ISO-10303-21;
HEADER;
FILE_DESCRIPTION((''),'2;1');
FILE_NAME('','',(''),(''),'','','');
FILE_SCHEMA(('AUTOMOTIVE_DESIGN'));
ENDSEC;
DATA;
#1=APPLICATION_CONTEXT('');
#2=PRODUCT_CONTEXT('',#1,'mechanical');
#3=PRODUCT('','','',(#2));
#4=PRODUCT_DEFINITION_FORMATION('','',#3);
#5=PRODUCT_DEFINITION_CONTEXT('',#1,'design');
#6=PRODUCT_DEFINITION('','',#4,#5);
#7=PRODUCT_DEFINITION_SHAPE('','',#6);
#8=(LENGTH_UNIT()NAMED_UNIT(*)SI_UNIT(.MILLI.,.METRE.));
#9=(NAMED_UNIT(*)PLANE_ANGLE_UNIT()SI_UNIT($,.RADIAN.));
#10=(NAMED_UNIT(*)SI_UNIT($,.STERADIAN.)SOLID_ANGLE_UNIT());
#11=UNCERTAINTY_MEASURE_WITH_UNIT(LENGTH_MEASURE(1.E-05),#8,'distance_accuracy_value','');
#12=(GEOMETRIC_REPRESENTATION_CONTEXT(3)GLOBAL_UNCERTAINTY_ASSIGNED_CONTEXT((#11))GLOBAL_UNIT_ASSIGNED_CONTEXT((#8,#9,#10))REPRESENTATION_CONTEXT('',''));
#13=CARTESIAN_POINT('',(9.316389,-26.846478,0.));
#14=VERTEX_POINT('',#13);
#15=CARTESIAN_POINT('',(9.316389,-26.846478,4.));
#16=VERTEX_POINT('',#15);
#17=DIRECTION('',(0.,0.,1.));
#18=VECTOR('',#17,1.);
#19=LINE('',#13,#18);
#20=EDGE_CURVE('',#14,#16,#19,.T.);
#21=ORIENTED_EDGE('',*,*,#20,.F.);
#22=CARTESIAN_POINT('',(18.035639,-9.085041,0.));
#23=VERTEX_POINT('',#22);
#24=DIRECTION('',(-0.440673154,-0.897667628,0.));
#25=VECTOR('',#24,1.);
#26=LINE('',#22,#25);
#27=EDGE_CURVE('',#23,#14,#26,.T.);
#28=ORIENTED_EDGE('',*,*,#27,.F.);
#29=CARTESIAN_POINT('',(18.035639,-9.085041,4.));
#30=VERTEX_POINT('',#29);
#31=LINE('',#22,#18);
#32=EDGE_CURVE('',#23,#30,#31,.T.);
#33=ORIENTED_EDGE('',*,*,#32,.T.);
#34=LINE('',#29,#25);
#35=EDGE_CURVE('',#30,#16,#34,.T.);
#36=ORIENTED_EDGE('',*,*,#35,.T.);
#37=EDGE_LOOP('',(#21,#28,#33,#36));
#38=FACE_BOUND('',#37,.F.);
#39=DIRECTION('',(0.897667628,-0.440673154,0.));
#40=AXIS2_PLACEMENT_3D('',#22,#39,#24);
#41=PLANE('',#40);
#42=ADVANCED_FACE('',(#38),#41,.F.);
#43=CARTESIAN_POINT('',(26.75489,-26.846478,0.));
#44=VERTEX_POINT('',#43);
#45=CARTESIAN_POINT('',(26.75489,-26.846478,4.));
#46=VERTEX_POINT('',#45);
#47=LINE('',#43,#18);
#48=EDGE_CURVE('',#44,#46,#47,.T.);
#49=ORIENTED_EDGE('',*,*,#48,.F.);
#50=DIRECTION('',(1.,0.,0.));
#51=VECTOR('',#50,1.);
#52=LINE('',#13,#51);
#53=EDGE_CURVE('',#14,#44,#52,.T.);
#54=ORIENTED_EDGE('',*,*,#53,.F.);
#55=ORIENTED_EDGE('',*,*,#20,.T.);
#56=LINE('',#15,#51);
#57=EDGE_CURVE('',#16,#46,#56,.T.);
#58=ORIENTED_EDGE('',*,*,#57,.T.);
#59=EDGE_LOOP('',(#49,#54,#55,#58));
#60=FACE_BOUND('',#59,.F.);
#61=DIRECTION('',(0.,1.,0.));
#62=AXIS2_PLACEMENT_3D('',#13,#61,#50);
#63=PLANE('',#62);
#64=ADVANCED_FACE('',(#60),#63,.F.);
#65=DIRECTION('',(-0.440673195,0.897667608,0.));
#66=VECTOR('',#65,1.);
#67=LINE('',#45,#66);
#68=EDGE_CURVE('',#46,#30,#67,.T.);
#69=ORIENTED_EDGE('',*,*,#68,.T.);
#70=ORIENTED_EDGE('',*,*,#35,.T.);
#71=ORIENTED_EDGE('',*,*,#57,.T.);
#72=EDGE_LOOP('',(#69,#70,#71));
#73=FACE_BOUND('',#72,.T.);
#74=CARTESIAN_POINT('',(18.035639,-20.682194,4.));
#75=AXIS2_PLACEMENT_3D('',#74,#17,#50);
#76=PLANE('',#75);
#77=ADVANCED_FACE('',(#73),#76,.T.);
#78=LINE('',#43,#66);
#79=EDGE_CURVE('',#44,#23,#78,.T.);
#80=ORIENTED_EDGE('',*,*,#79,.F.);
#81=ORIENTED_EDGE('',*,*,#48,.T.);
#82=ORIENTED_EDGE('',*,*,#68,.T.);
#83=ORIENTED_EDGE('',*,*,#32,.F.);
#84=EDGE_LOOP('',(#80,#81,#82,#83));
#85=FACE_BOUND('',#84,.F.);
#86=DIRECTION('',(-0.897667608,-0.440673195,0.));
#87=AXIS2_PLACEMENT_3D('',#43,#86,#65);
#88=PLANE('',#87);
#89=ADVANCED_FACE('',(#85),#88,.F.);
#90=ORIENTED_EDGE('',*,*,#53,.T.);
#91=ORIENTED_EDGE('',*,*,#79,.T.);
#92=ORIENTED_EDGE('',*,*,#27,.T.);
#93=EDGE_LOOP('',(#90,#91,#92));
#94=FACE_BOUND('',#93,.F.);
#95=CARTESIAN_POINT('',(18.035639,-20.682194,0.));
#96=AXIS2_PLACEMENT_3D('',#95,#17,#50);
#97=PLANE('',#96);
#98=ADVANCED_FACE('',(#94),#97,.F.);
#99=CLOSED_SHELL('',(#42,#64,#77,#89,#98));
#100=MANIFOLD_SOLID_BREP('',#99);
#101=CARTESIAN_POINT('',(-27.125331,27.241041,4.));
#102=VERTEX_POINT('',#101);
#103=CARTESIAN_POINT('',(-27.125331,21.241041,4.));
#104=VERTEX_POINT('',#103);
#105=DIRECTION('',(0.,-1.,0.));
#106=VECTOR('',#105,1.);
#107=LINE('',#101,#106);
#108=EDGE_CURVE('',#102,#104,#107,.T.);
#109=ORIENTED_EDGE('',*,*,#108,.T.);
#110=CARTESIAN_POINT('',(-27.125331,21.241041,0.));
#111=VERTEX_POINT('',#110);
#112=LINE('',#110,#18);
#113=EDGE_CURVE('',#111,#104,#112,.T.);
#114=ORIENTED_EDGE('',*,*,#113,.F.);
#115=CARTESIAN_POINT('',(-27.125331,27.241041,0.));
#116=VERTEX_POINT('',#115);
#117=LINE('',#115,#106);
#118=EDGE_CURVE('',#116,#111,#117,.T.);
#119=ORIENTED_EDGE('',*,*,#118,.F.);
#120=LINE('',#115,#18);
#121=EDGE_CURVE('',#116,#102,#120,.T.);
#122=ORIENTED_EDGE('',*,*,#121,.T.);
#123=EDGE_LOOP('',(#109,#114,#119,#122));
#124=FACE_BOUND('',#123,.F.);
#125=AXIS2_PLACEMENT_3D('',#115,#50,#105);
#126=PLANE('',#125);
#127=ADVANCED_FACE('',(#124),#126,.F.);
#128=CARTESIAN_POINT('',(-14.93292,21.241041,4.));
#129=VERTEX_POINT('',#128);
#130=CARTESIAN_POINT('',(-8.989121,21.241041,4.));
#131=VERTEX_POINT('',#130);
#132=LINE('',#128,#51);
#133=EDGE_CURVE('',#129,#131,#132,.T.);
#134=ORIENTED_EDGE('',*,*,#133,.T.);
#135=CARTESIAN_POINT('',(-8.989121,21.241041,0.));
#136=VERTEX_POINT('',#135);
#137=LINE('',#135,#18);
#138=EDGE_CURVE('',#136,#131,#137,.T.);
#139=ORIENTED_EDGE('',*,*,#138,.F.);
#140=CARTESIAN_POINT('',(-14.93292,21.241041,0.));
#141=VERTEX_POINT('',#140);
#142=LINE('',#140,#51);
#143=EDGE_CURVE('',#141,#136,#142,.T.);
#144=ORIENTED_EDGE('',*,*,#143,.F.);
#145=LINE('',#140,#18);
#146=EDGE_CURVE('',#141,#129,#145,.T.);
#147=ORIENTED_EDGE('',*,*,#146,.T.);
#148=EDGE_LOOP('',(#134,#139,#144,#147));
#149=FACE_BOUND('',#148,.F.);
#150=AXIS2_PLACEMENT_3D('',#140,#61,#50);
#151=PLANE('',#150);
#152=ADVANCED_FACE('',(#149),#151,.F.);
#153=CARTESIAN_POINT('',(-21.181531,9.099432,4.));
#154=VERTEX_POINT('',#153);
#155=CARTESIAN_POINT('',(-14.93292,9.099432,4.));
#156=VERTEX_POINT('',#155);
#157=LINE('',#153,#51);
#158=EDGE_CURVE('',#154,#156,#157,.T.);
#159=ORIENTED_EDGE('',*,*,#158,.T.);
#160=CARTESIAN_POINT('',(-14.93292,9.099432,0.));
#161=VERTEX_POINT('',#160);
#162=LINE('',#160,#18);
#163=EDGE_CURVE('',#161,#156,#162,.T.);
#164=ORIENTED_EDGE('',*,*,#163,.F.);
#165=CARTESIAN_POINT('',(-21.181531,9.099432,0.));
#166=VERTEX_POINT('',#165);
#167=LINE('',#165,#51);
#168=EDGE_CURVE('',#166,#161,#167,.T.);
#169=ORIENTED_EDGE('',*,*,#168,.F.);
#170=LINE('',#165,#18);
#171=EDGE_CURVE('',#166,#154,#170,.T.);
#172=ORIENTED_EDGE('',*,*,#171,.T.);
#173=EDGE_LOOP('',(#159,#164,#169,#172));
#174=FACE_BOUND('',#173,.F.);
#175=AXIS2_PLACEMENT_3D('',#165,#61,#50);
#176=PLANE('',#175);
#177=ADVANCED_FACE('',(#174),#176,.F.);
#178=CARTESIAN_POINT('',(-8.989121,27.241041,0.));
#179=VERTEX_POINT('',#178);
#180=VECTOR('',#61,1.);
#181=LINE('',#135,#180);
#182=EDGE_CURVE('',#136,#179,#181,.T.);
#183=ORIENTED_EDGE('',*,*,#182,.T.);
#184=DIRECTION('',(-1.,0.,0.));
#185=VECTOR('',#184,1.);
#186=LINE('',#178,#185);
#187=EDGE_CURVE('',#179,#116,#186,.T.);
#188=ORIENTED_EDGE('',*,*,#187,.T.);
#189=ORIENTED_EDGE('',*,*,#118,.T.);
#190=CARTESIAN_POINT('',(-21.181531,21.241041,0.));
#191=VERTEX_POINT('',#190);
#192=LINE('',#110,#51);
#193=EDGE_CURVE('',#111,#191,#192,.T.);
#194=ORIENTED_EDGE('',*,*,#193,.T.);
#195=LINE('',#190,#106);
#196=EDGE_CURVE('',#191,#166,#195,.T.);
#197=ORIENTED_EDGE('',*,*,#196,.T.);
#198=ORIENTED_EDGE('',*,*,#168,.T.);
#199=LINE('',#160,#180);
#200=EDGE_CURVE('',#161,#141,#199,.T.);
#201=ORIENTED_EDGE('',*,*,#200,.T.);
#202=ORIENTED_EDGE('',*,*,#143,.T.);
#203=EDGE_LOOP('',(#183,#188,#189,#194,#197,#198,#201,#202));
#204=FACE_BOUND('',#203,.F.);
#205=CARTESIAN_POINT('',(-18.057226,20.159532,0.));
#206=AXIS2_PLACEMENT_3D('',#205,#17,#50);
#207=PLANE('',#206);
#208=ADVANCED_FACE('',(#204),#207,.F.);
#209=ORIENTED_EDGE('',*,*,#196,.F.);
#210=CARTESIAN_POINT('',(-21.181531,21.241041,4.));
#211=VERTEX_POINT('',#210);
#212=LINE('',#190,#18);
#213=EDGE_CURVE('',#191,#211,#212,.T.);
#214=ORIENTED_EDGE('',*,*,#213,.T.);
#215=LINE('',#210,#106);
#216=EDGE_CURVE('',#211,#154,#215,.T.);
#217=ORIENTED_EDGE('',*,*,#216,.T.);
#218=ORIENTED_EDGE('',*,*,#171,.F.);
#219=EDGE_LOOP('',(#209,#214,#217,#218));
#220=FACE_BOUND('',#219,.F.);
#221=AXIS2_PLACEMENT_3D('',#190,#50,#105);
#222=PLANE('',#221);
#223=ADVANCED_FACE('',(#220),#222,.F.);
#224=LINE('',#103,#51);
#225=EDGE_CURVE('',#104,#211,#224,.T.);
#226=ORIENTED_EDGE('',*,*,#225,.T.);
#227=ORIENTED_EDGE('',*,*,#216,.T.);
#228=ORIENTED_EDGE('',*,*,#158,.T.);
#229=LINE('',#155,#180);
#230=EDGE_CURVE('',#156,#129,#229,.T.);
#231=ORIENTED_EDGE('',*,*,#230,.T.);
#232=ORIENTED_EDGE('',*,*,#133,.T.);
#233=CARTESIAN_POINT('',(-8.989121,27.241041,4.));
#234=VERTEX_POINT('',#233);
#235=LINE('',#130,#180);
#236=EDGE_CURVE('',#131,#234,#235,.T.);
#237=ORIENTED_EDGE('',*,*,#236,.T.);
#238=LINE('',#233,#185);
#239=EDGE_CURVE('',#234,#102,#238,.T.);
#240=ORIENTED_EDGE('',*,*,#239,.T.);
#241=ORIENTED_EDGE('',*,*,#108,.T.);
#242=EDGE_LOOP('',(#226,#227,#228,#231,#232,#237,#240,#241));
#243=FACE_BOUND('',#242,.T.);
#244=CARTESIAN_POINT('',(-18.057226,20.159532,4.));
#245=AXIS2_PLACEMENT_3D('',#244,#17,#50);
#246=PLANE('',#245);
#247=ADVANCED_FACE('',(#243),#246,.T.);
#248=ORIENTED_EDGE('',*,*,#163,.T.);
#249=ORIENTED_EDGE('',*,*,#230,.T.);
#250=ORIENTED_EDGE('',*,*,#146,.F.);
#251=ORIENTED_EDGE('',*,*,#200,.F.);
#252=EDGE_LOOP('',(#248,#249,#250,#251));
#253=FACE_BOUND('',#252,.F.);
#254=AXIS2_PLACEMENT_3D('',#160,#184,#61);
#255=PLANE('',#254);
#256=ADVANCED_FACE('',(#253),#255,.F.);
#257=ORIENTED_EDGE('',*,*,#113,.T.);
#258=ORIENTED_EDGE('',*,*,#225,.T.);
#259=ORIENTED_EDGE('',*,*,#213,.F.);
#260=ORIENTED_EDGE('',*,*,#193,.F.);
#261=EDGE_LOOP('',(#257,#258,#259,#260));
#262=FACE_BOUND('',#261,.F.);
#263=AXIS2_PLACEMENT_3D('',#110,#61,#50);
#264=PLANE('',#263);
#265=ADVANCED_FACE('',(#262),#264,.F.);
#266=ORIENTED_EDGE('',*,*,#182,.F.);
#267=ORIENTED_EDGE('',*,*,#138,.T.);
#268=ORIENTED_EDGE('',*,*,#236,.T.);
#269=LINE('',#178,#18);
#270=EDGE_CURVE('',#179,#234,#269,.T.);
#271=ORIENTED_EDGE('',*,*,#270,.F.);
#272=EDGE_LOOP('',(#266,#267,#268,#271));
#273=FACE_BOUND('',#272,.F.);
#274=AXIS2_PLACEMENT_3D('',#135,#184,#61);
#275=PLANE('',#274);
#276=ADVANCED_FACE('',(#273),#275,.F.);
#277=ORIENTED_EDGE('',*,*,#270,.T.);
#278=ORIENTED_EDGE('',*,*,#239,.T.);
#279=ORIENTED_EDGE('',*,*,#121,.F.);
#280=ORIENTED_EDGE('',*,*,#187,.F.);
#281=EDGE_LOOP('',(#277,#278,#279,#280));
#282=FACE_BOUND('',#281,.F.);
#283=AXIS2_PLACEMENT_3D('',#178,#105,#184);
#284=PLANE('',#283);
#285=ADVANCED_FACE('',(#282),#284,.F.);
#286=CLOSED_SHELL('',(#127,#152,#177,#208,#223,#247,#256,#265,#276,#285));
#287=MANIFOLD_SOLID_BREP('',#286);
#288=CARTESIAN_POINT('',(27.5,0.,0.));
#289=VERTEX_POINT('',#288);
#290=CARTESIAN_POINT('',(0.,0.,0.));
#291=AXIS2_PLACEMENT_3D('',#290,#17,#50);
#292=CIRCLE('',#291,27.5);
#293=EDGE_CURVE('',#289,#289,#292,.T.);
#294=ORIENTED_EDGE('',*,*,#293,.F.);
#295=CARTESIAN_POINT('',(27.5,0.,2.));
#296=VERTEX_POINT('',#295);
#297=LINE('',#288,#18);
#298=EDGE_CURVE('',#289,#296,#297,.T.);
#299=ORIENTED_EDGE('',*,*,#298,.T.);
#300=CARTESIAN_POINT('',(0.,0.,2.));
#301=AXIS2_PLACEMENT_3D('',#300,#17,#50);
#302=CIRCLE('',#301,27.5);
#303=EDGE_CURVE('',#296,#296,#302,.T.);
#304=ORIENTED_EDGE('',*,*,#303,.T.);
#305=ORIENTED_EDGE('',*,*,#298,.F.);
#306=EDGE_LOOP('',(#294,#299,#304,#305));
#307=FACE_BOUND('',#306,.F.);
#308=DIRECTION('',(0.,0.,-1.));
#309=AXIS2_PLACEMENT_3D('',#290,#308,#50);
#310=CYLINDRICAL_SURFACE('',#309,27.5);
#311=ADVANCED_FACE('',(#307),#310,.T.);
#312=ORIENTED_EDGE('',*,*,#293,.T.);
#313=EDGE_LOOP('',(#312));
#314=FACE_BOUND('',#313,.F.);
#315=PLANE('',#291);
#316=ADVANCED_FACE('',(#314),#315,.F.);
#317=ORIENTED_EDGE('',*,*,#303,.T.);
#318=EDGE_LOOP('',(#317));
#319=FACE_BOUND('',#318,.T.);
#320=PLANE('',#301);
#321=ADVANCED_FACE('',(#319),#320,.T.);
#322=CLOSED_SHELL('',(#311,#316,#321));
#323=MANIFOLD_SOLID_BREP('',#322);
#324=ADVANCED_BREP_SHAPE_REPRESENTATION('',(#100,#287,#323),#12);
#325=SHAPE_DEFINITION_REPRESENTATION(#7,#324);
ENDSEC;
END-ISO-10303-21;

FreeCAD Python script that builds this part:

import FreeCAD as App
import Part
import Sketcher
from FreeCAD import Vector
Q = App.Units.Quantity


def add_polygon(sketch, points):
    """Adds a closed chain of lines whose ends are joined by coincident constraints."""
    first, n = sketch.GeometryCount, len(points)
    for a, b in zip(points, points[1:] + points[:1]):
        sketch.addGeometry(Part.LineSegment(App.Vector(*a, 0), App.Vector(*b, 0)), False)
    for i in range(n):
        sketch.addConstraint(Sketcher.Constraint("Coincident", first + i, 2, first + (i + 1) % n, 1))

doc = App.newDocument("Part")
body = doc.addObject("PartDesign::Body", "Body")

sketch1 = body.newObject("Sketcher::SketchObject", "Sketch")
sketch1.AttachmentSupport = (doc.getObject("XY_Plane"), [""])
sketch1.MapMode = "FlatFace"
sketch1.addGeometry(Part.Circle(Vector(0, 0, 0), Vector(0, 0, 1), 28), False)
sketch1.addConstraint(Sketcher.Constraint("Coincident", 0, 3, -1, 1))
sketch1.addConstraint(Sketcher.Constraint("Diameter", 0, Q("55 mm")))
pad1 = body.newObject("PartDesign::Pad", "Pad")
pad1.Profile = sketch1
pad1.Length = 2
body2 = doc.addObject("PartDesign::Body", "Body001")

sketch2 = body2.newObject("Sketcher::SketchObject", "Sketch001")
sketch2.AttachmentSupport = (doc.getObject("XY_Plane001"), [""])
sketch2.MapMode = "FlatFace"
add_polygon(sketch2, [(-9, 27), (-27, 27), (-27, 21), (-21, 21), (-21, 9), (-15, 9), (-15, 21), (-9, 21)])
sketch2.addConstraint(Sketcher.Constraint("Horizontal", 0))
sketch2.addConstraint(Sketcher.Constraint("Vertical", 1))
sketch2.addConstraint(Sketcher.Constraint("Horizontal", 2))
sketch2.addConstraint(Sketcher.Constraint("Vertical", 3))
sketch2.addConstraint(Sketcher.Constraint("Horizontal", 4))
sketch2.addConstraint(Sketcher.Constraint("Vertical", 5))
sketch2.addConstraint(Sketcher.Constraint("Horizontal", 6))
sketch2.addConstraint(Sketcher.Constraint("Vertical", 7))
sketch2.addConstraint(Sketcher.Constraint("Horizontal", 2, 2, 5, 2))
sketch2.addConstraint(Sketcher.Constraint("Equal", 2, 6))
sketch2.addConstraint(Sketcher.Constraint("DistanceY", 1, 2, 1, 1, Q("6 mm")))
sketch2.addConstraint(Sketcher.Constraint("DistanceX", 2, 1, 2, 2, Q("5.9438 mm")))
sketch2.addConstraint(Sketcher.Constraint("DistanceX", 0, 2, 0, 1, Q("18.13621 mm")))
sketch2.addConstraint(Sketcher.Constraint("DistanceY", 3, 2, 3, 1, Q("12.141609 mm")))
sketch2.addConstraint(Sketcher.Constraint("DistanceX", 0, 2, -1, 1, Q("27.125331 mm")))
sketch2.addConstraint(Sketcher.Constraint("DistanceY", -1, 1, 0, 2, Q("27.241041 mm")))
pad2 = body2.newObject("PartDesign::Pad", "Pad001")
pad2.Profile = sketch2
pad2.Length = 4
body3 = doc.addObject("PartDesign::Body", "Body002")

sketch3 = body3.newObject("Sketcher::SketchObject", "Sketch002")
sketch3.AttachmentSupport = (doc.getObject("XY_Plane002"), [""])
sketch3.MapMode = "FlatFace"
add_polygon(sketch3, [(27, -27), (18, -9), (9, -27)])
sketch3.addConstraint(Sketcher.Constraint("Horizontal", 2))
sketch3.addConstraint(Sketcher.Constraint("Equal", 0, 1))
sketch3.addConstraint(Sketcher.Constraint("DistanceX", 2, 1, 2, 2, Q("17.438501 mm")))
sketch3.addConstraint(Sketcher.Constraint("DistanceX", -1, 1, 0, 2, Q("18.035639 mm")))
sketch3.addConstraint(Sketcher.Constraint("DistanceY", 0, 2, -1, 1, Q("9.085041 mm")))
sketch3.addConstraint(Sketcher.Constraint("DistanceY", 1, 2, -1, 1, Q("26.846478 mm")))
pad3 = body3.newObject("PartDesign::Pad", "Pad002")
pad3.Profile = sketch3
pad3.Length = 4

doc.recompute()
